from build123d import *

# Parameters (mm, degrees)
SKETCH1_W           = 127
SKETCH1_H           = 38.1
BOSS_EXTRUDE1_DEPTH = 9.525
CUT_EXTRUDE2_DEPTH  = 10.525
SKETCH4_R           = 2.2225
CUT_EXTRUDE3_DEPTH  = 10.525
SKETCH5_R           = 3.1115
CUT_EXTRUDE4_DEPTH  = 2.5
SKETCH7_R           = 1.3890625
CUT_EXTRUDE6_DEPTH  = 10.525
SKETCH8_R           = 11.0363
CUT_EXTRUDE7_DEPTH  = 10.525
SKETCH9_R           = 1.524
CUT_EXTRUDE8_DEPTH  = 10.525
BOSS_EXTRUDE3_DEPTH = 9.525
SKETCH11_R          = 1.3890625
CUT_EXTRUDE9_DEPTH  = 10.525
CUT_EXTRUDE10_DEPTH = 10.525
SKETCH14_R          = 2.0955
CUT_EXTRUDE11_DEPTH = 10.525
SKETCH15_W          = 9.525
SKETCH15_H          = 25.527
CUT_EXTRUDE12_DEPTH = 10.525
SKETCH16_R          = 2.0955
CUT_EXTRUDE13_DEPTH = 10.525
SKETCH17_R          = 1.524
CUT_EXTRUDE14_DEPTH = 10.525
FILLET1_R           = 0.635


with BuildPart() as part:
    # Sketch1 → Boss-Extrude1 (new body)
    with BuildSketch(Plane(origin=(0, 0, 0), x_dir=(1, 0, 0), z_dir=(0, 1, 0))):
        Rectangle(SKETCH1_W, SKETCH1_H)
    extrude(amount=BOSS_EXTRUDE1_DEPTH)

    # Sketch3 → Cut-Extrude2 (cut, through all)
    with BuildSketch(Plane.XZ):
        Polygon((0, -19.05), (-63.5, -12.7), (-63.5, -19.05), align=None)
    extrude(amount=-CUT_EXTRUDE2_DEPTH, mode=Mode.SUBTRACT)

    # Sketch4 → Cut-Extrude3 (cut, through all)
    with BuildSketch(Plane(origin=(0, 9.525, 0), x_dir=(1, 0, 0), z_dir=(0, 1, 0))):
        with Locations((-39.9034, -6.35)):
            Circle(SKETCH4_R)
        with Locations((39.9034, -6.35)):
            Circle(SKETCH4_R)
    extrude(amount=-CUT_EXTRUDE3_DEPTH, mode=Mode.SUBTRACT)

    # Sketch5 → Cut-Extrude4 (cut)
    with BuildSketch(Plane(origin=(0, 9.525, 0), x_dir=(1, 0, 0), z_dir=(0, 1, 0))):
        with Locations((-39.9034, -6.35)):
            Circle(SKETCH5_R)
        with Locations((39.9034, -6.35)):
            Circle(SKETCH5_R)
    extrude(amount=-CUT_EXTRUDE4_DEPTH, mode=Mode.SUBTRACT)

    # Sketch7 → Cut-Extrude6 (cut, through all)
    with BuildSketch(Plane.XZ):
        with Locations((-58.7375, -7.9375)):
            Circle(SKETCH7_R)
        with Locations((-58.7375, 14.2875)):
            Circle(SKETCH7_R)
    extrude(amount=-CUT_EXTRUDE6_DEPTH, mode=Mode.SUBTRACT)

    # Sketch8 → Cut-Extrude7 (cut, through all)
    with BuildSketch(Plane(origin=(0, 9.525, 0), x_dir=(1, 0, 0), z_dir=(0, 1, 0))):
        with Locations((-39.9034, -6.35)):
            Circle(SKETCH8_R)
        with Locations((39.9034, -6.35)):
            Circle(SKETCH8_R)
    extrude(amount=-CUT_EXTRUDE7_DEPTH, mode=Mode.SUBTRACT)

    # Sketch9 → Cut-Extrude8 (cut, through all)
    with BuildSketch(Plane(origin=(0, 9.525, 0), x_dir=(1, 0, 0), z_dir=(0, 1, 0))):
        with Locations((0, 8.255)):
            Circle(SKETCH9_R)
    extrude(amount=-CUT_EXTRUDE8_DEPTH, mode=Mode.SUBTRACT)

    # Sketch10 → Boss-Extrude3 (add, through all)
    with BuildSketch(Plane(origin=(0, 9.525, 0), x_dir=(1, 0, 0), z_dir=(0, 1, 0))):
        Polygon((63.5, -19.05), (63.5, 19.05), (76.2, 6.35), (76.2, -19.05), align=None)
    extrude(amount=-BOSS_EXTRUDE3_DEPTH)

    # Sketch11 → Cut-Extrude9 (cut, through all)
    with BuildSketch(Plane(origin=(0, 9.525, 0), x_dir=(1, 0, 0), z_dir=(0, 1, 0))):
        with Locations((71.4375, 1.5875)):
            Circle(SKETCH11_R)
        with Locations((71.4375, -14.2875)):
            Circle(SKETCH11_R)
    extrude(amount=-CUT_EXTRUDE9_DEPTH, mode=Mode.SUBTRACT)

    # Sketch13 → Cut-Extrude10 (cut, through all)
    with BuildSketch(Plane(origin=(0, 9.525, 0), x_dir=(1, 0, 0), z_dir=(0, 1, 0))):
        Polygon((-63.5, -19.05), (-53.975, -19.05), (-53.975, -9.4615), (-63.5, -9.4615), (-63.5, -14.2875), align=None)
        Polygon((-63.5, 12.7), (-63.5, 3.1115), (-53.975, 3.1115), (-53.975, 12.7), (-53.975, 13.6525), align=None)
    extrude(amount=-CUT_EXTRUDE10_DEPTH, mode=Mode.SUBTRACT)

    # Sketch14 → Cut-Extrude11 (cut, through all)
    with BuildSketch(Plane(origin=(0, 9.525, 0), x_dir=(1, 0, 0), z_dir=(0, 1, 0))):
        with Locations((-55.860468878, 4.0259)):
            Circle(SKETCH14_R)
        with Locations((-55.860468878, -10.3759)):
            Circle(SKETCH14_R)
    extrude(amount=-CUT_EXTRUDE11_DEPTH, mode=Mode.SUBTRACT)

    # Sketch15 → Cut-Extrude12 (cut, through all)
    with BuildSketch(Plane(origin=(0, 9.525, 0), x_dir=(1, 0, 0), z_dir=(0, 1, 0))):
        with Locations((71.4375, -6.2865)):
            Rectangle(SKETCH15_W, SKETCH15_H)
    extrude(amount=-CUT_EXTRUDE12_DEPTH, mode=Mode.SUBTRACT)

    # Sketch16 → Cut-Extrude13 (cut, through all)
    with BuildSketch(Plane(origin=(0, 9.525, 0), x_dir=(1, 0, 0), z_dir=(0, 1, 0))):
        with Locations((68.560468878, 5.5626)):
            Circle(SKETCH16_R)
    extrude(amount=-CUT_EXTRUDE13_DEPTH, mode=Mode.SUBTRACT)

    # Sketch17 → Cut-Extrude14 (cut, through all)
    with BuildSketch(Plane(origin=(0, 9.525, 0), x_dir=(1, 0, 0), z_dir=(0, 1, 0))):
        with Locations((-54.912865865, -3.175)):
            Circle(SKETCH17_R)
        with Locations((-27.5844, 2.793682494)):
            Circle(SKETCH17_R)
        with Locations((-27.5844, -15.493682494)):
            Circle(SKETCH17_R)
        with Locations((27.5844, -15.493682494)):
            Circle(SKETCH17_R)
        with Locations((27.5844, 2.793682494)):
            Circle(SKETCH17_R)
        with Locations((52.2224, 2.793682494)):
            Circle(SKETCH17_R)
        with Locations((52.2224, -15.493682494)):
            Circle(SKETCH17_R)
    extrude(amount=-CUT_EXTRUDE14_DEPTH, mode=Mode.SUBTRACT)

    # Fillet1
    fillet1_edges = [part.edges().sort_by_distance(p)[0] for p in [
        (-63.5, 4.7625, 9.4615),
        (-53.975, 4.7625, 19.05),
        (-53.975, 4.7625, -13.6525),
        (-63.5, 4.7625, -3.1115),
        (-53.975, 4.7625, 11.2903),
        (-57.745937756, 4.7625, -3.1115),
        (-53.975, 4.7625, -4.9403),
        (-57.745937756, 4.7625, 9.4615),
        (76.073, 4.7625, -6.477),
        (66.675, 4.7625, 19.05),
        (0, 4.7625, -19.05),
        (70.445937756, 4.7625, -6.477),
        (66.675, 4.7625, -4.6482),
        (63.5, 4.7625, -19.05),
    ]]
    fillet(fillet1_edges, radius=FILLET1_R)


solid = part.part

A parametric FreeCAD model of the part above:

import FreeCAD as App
import Part
import Sketcher
Q = App.Units.Quantity


def edges_at(feature, points):
    """Names of the edges that pass closest to the given points."""
    edges = feature.Shape.Edges
    near = lambda p: min(range(len(edges)), key=lambda i: edges[i].distToShape(Part.Vertex(*p))[0])
    return sorted({f"Edge{near(p) + 1}" for p in points})


def add_polygon(sketch, points):
    """Adds a closed chain of lines whose ends are joined by coincident constraints."""
    first, n = sketch.GeometryCount, len(points)
    for a, b in zip(points, points[1:] + points[:1]):
        sketch.addGeometry(Part.LineSegment(App.Vector(*a, 0), App.Vector(*b, 0)), False)
    for i in range(n):
        sketch.addConstraint(Sketcher.Constraint("Coincident", first + i, 2, first + (i + 1) % n, 1))

doc = App.newDocument("Part")
params = doc.addObject("Spreadsheet::Sheet", "Params")
for row, (alias, value) in enumerate([
    ("sketch1_width", "5 in"),
    ("sketch1_height", "1.5 in"),
    ("pad1_length", "0.375 in"),
    ("sketch2_width", "2.5 in"),
    ("sketch2_height", "0.25 in"),
    ("sketch3_diameter", "0.175 in"),
    ("sketch4_diameter", "0.245 in"),
    ("pocket3_length", "2.5 mm"),
    ("sketch5_diameter", "0.109375 in"),
    ("sketch6_diameter", "0.869 in"),
    ("sketch7_diameter", "0.12 in"),
    ("sketch8_height", "1 in"),
    ("sketch8_width", "0.5 in"),
    ("sketch8_height2", "1.5 in"),
    ("pad2_length", "0.375 in"),
    ("sketch9_diameter", "0.109375 in"),
    ("sketch10_width", "0.375 in"),
    ("sketch10_height", "0.415 in"),
    ("sketch11_diameter", "0.165 in"),
    ("sketch12_width", "0.375 in"),
    ("sketch12_height", "1.005 in"),
    ("sketch13_diameter", "0.165 in"),
    ("sketch14_diameter", "0.12 in"),
    ("fillet_radius", "0.025 in"),
], start=1):
    params.set(f"A{row}", alias)
    params.set(f"B{row}", "=" + value)
    params.setAlias(f"B{row}", alias)

body = doc.addObject("PartDesign::Body", "Body")

sketch1 = doc.addObject("Sketcher::SketchObject", "Sketch")
body.addObject(sketch1)
sketch1.AttachmentSupport = (doc.XZ_Plane, [""])
sketch1.MapMode = "FlatFace"
add_polygon(sketch1, [(-63.5, -19.05), (-63.5, 19.05), (63.5, 19.05), (63.5, -19.05)])
sketch1.addConstraint(Sketcher.Constraint("Vertical", 0))
sketch1.addConstraint(Sketcher.Constraint("Horizontal", 1))
sketch1.addConstraint(Sketcher.Constraint("Vertical", 2))
sketch1.addConstraint(Sketcher.Constraint("Horizontal", 3))
sketch1.addConstraint(Sketcher.Constraint("Symmetric", 0, 2, 2, 2, -1, 1))
sketch1.addConstraint(Sketcher.Constraint("DistanceX", 1, 1, 1, 2, Q("5 in")))
sketch1.addConstraint(Sketcher.Constraint("DistanceY", 0, 1, 0, 2, Q("1.5 in")))
sketch1.setExpression("Constraints[9]", "Params.sketch1_width")
sketch1.setExpression("Constraints[10]", "Params.sketch1_height")
pad1 = doc.addObject("PartDesign::Pad", "Pad")
body.addObject(pad1)
pad1.Profile = sketch1
pad1.setExpression("Length", "Params.pad1_length")
pad1.Reversed = True

sketch2 = doc.addObject("Sketcher::SketchObject", "Sketch001")
body.addObject(sketch2)
sketch2.AttachmentSupport = (doc.XZ_Plane, [""])
sketch2.MapMode = "FlatFace"
add_polygon(sketch2, [(0, -19.05), (-63.5, -12.7), (-63.5, -19.05)])
sketch2.addConstraint(Sketcher.Constraint("Vertical", 1))
sketch2.addConstraint(Sketcher.Constraint("Horizontal", 2))
sketch2.addConstraint(Sketcher.Constraint("PointOnObject", 2, 2, -2))
sketch2.addConstraint(Sketcher.Constraint("DistanceX", 2, 1, 2, 2, Q("2.5 in")))
sketch2.addConstraint(Sketcher.Constraint("DistanceY", 1, 2, 1, 1, Q("0.25 in")))
sketch2.addConstraint(Sketcher.Constraint("DistanceY", 0, 2, -1, 1, Q("0.5 in")))
sketch2.setExpression("Constraints[6]", "Params.sketch2_width")
sketch2.setExpression("Constraints[7]", "Params.sketch2_height")
pocket1 = doc.addObject("PartDesign::Pocket", "Pocket")
body.addObject(pocket1)
pocket1.Profile = sketch2
pocket1.Type = "ThroughAll"

sketch3 = doc.addObject("Sketcher::SketchObject", "Sketch002")
body.addObject(sketch3)
sketch3.AttachmentSupport = (doc.XZ_Plane, [""])
sketch3.MapMode = "FlatFace"
sketch3.AttachmentOffset = App.Placement(App.Vector(0, 0, -0.375 * 25.4), App.Rotation())
sketch3.addGeometry(Part.Circle(App.Vector(-39.9034, 6.35, 0), App.Vector(0, 0, 1), 2.2225), False)
sketch3.addGeometry(Part.Circle(App.Vector(39.9034, 6.35, 0), App.Vector(0, 0, 1), 2.2225), False)
sketch3.addConstraint(Sketcher.Constraint("Equal", 0, 1))
sketch3.addConstraint(Sketcher.Constraint("Symmetric", 0, 3, 1, 3, -2))
sketch3.addConstraint(Sketcher.Constraint("Diameter", 0, Q("0.175 in")))
sketch3.addConstraint(Sketcher.Constraint("DistanceY", -1, 1, 0, 3, Q("0.25 in")))
sketch3.addConstraint(Sketcher.Constraint("DistanceX", 0, 3, -1, 1, Q("1.571 in")))
sketch3.setExpression("Constraints[2]", "Params.sketch3_diameter")
pocket2 = doc.addObject("PartDesign::Pocket", "Pocket001")
body.addObject(pocket2)
pocket2.Profile = sketch3
pocket2.Type = "ThroughAll"
pocket2.Reversed = True

sketch4 = doc.addObject("Sketcher::SketchObject", "Sketch003")
body.addObject(sketch4)
sketch4.AttachmentSupport = (doc.XZ_Plane, [""])
sketch4.MapMode = "FlatFace"
sketch4.AttachmentOffset = App.Placement(App.Vector(0, 0, -0.375 * 25.4), App.Rotation())
sketch4.addGeometry(Part.Circle(App.Vector(-39.9034, 6.35, 0), App.Vector(0, 0, 1), 3.1115), False)
sketch4.addGeometry(Part.Circle(App.Vector(39.9034, 6.35, 0), App.Vector(0, 0, 1), 3.1115), False)
sketch4.addConstraint(Sketcher.Constraint("Equal", 0, 1))
sketch4.addConstraint(Sketcher.Constraint("Symmetric", 0, 3, 1, 3, -2))
sketch4.addConstraint(Sketcher.Constraint("Diameter", 0, Q("0.245 in")))
sketch4.addConstraint(Sketcher.Constraint("DistanceY", -1, 1, 0, 3, Q("0.25 in")))
sketch4.addConstraint(Sketcher.Constraint("DistanceX", 0, 3, -1, 1, Q("1.571 in")))
sketch4.setExpression("Constraints[2]", "Params.sketch4_diameter")
pocket3 = doc.addObject("PartDesign::Pocket", "Pocket002")
body.addObject(pocket3)
pocket3.Profile = sketch4
pocket3.setExpression("Length", "Params.pocket3_length")
pocket3.Reversed = True

sketch5 = doc.addObject("Sketcher::SketchObject", "Sketch004")
body.addObject(sketch5)
sketch5.AttachmentSupport = (doc.XZ_Plane, [""])
sketch5.MapMode = "FlatFace"
sketch5.addGeometry(Part.Circle(App.Vector(-58.7375, -7.9375, 0), App.Vector(0, 0, 1), 1.389063), False)
sketch5.addGeometry(Part.Circle(App.Vector(-58.7375, 14.2875, 0), App.Vector(0, 0, 1), 1.389063), False)
sketch5.addConstraint(Sketcher.Constraint("Equal", 0, 1))
sketch5.addConstraint(Sketcher.Constraint("Vertical", 0, 3, 1, 3))
sketch5.addConstraint(Sketcher.Constraint("Diameter", 0, Q("0.109375 in")))
sketch5.addConstraint(Sketcher.Constraint("DistanceX", 0, 3, -1, 1, Q("2.3125 in")))
sketch5.addConstraint(Sketcher.Constraint("DistanceY", 0, 3, -1, 1, Q("0.3125 in")))
sketch5.addConstraint(Sketcher.Constraint("DistanceY", -1, 1, 1, 3, Q("0.5625 in")))
sketch5.setExpression("Constraints[2]", "Params.sketch5_diameter")
pocket4 = doc.addObject("PartDesign::Pocket", "Pocket003")
body.addObject(pocket4)
pocket4.Profile = sketch5
pocket4.Type = "ThroughAll"

sketch6 = doc.addObject("Sketcher::SketchObject", "Sketch005")
body.addObject(sketch6)
sketch6.AttachmentSupport = (doc.XZ_Plane, [""])
sketch6.MapMode = "FlatFace"
sketch6.AttachmentOffset = App.Placement(App.Vector(0, 0, -0.375 * 25.4), App.Rotation())
sketch6.addGeometry(Part.Circle(App.Vector(-39.9034, 6.35, 0), App.Vector(0, 0, 1), 11.0363), False)
sketch6.addGeometry(Part.Circle(App.Vector(39.9034, 6.35, 0), App.Vector(0, 0, 1), 11.0363), False)
sketch6.addConstraint(Sketcher.Constraint("Equal", 0, 1))
sketch6.addConstraint(Sketcher.Constraint("Symmetric", 0, 3, 1, 3, -2))
sketch6.addConstraint(Sketcher.Constraint("Diameter", 0, Q("0.869 in")))
sketch6.addConstraint(Sketcher.Constraint("DistanceY", -1, 1, 0, 3, Q("0.25 in")))
sketch6.addConstraint(Sketcher.Constraint("DistanceX", 0, 3, -1, 1, Q("1.571 in")))
sketch6.setExpression("Constraints[2]", "Params.sketch6_diameter")
pocket5 = doc.addObject("PartDesign::Pocket", "Pocket004")
body.addObject(pocket5)
pocket5.Profile = sketch6
pocket5.Type = "ThroughAll"
pocket5.Reversed = True

sketch7 = doc.addObject("Sketcher::SketchObject", "Sketch006")
body.addObject(sketch7)
sketch7.AttachmentSupport = (doc.XZ_Plane, [""])
sketch7.MapMode = "FlatFace"
sketch7.AttachmentOffset = App.Placement(App.Vector(0, 0, -0.375 * 25.4), App.Rotation())
sketch7.addGeometry(Part.Circle(App.Vector(0, -8.255, 0), App.Vector(0, 0, 1), 1.524), False)
sketch7.addConstraint(Sketcher.Constraint("PointOnObject", 0, 3, -2))
sketch7.addConstraint(Sketcher.Constraint("Diameter", 0, Q("0.12 in")))
sketch7.addConstraint(Sketcher.Constraint("DistanceY", 0, 3, -1, 1, Q("0.325 in")))
sketch7.setExpression("Constraints[1]", "Params.sketch7_diameter")
pocket6 = doc.addObject("PartDesign::Pocket", "Pocket005")
body.addObject(pocket6)
pocket6.Profile = sketch7
pocket6.Type = "ThroughAll"
pocket6.Reversed = True

sketch8 = doc.addObject("Sketcher::SketchObject", "Sketch007")
body.addObject(sketch8)
sketch8.AttachmentSupport = (doc.XZ_Plane, [""])
sketch8.MapMode = "FlatFace"
sketch8.AttachmentOffset = App.Placement(App.Vector(0, 0, -0.375 * 25.4), App.Rotation())
add_polygon(sketch8, [(63.5, -19.05), (63.5, 19.05), (76.2, 19.05), (76.2, -6.35)])
sketch8.addConstraint(Sketcher.Constraint("Vertical", 0))
sketch8.addConstraint(Sketcher.Constraint("Horizontal", 1))
sketch8.addConstraint(Sketcher.Constraint("Vertical", 2))
sketch8.addConstraint(Sketcher.Constraint("DistanceY", 2, 2, 2, 1, Q("1 in")))
sketch8.addConstraint(Sketcher.Constraint("DistanceX", 1, 1, 1, 2, Q("0.5 in")))
sketch8.addConstraint(Sketcher.Constraint("DistanceY", 0, 1, 0, 2, Q("1.5 in")))
sketch8.addConstraint(Sketcher.Constraint("DistanceX", -1, 1, 1, 2, Q("3 in")))
sketch8.addConstraint(Sketcher.Constraint("DistanceY", -1, 1, 0, 2, Q("0.75 in")))
sketch8.setExpression("Constraints[7]", "Params.sketch8_height")
sketch8.setExpression("Constraints[8]", "Params.sketch8_width")
sketch8.setExpression("Constraints[9]", "Params.sketch8_height2")
pad2 = doc.addObject("PartDesign::Pad", "Pad001")
body.addObject(pad2)
pad2.Profile = sketch8
pad2.setExpression("Length", "Params.pad2_length")

sketch9 = doc.addObject("Sketcher::SketchObject", "Sketch008")
body.addObject(sketch9)
sketch9.AttachmentSupport = (doc.XZ_Plane, [""])
sketch9.MapMode = "FlatFace"
sketch9.AttachmentOffset = App.Placement(App.Vector(0, 0, -0.375 * 25.4), App.Rotation())
sketch9.addGeometry(Part.Circle(App.Vector(71.4375, -1.5875, 0), App.Vector(0, 0, 1), 1.389063), False)
sketch9.addGeometry(Part.Circle(App.Vector(71.4375, 14.2875, 0), App.Vector(0, 0, 1), 1.389063), False)
sketch9.addConstraint(Sketcher.Constraint("Equal", 0, 1))
sketch9.addConstraint(Sketcher.Constraint("Vertical", 0, 3, 1, 3))
sketch9.addConstraint(Sketcher.Constraint("Diameter", 0, Q("0.109375 in")))
sketch9.addConstraint(Sketcher.Constraint("DistanceX", -1, 1, 0, 3, Q("2.8125 in")))
sketch9.addConstraint(Sketcher.Constraint("DistanceY", 0, 3, -1, 1, Q("0.0625 in")))
sketch9.addConstraint(Sketcher.Constraint("DistanceY", -1, 1, 1, 3, Q("0.5625 in")))
sketch9.setExpression("Constraints[2]", "Params.sketch9_diameter")
pocket7 = doc.addObject("PartDesign::Pocket", "Pocket006")
body.addObject(pocket7)
pocket7.Profile = sketch9
pocket7.Type = "ThroughAll"
pocket7.Reversed = True

sketch10 = doc.addObject("Sketcher::SketchObject", "Sketch009")
body.addObject(sketch10)
sketch10.AttachmentSupport = (doc.XZ_Plane, [""])
sketch10.MapMode = "FlatFace"
sketch10.AttachmentOffset = App.Placement(App.Vector(0, 0, -0.375 * 25.4), App.Rotation())
add_polygon(sketch10, [(-63.5, 19.05), (-53.975, 19.05), (-53.975, 9.4615), (-63.5, 9.4615)])
add_polygon(sketch10, [(-63.5, -12.7), (-63.5, -3.1115), (-53.975, -3.1115), (-53.975, -13.6525)])
sketch10.addConstraint(Sketcher.Constraint("Horizontal", 0))
sketch10.addConstraint(Sketcher.Constraint("Vertical", 1))
sketch10.addConstraint(Sketcher.Constraint("Horizontal", 2))
sketch10.addConstraint(Sketcher.Constraint("Vertical", 3))
sketch10.addConstraint(Sketcher.Constraint("Vertical", 4))
sketch10.addConstraint(Sketcher.Constraint("Horizontal", 5))
sketch10.addConstraint(Sketcher.Constraint("Vertical", 6))
sketch10.addConstraint(Sketcher.Constraint("Vertical", 3, 2, 4, 2))
sketch10.addConstraint(Sketcher.Constraint("Vertical", 1, 2, 5, 2))
sketch10.addConstraint(Sketcher.Constraint("Equal", 3, 4))
sketch10.addConstraint(Sketcher.Constraint("DistanceX", 2, 2, -1, 1, Q("2.5 in")))
sketch10.addConstraint(Sketcher.Constraint("DistanceY", 7, 2, -1, 1, Q("0.5 in")))
sketch10.addConstraint(Sketcher.Constraint("DistanceX", 0, 1, 0, 2, Q("0.375 in")))
sketch10.addConstraint(Sketcher.Constraint("DistanceY", 6, 2, 6, 1, Q("0.415 in")))
sketch10.addConstraint(Sketcher.Constraint("DistanceY", -1, 1, 0, 2, Q("0.75 in")))
sketch10.addConstraint(Sketcher.Constraint("DistanceY", 6, 2, 1, 2, Q("0.91 in")))
sketch10.setExpression("Constraints[20]", "Params.sketch10_width")
sketch10.setExpression("Constraints[21]", "Params.sketch10_height")
pocket8 = doc.addObject("PartDesign::Pocket", "Pocket007")
body.addObject(pocket8)
pocket8.Profile = sketch10
pocket8.Type = "ThroughAll"
pocket8.Reversed = True

sketch11 = doc.addObject("Sketcher::SketchObject", "Sketch010")
body.addObject(sketch11)
sketch11.AttachmentSupport = (doc.XZ_Plane, [""])
sketch11.MapMode = "FlatFace"
sketch11.AttachmentOffset = App.Placement(App.Vector(0, 0, -0.375 * 25.4), App.Rotation())
sketch11.addGeometry(Part.Circle(App.Vector(-55.860469, -4.0259, 0), App.Vector(0, 0, 1), 2.0955), False)
sketch11.addGeometry(Part.Circle(App.Vector(-55.860469, 10.3759, 0), App.Vector(0, 0, 1), 2.0955), False)
sketch11.addConstraint(Sketcher.Constraint("Equal", 0, 1))
sketch11.addConstraint(Sketcher.Constraint("Vertical", 0, 3, 1, 3))
sketch11.addConstraint(Sketcher.Constraint("Diameter", 0, Q("0.165 in")))
sketch11.addConstraint(Sketcher.Constraint("DistanceY", 0, 3, 1, 3, Q("0.567 in")))
sketch11.addConstraint(Sketcher.Constraint("DistanceY", 0, 3, -1, 1, Q("0.1585 in")))
sketch11.addConstraint(Sketcher.Constraint("DistanceX", 0, 3, -1, 1, Q("55.860469 mm")))
sketch11.setExpression("Constraints[2]", "Params.sketch11_diameter")
pocket9 = doc.addObject("PartDesign::Pocket", "Pocket008")
body.addObject(pocket9)
pocket9.Profile = sketch11
pocket9.Type = "ThroughAll"
pocket9.Reversed = True

sketch12 = doc.addObject("Sketcher::SketchObject", "Sketch011")
body.addObject(sketch12)
sketch12.AttachmentSupport = (doc.XZ_Plane, [""])
sketch12.MapMode = "FlatFace"
sketch12.AttachmentOffset = App.Placement(App.Vector(0, 0, -0.375 * 25.4), App.Rotation())
add_polygon(sketch12, [(66.675, -6.477), (66.675, 19.05), (76.2, 19.05), (76.2, -6.477)])
sketch12.addConstraint(Sketcher.Constraint("Vertical", 0))
sketch12.addConstraint(Sketcher.Constraint("Horizontal", 1))
sketch12.addConstraint(Sketcher.Constraint("Vertical", 2))
sketch12.addConstraint(Sketcher.Constraint("Horizontal", 3))
sketch12.addConstraint(Sketcher.Constraint("DistanceX", -1, 1, 1, 2, Q("3 in")))
sketch12.addConstraint(Sketcher.Constraint("DistanceX", 1, 1, 1, 2, Q("0.375 in")))
sketch12.addConstraint(Sketcher.Constraint("DistanceY", 0, 1, 0, 2, Q("1.005 in")))
sketch12.addConstraint(Sketcher.Constraint("DistanceY", -1, 1, 0, 2, Q("0.75 in")))
sketch12.setExpression("Constraints[9]", "Params.sketch12_width")
sketch12.setExpression("Constraints[10]", "Params.sketch12_height")
pocket10 = doc.addObject("PartDesign::Pocket", "Pocket009")
body.addObject(pocket10)
pocket10.Profile = sketch12
pocket10.Type = "ThroughAll"
pocket10.Reversed = True

sketch13 = doc.addObject("Sketcher::SketchObject", "Sketch012")
body.addObject(sketch13)
sketch13.AttachmentSupport = (doc.XZ_Plane, [""])
sketch13.MapMode = "FlatFace"
sketch13.AttachmentOffset = App.Placement(App.Vector(0, 0, -0.375 * 25.4), App.Rotation())
sketch13.addGeometry(Part.Circle(App.Vector(68.560469, -5.5626, 0), App.Vector(0, 0, 1), 2.0955), False)
sketch13.addConstraint(Sketcher.Constraint("Diameter", 0, Q("0.165 in")))
sketch13.addConstraint(Sketcher.Constraint("DistanceY", 0, 3, -1, 1, Q("0.219 in")))
sketch13.addConstraint(Sketcher.Constraint("DistanceX", -1, 1, 0, 3, Q("68.560469 mm")))
sketch13.setExpression("Constraints[0]", "Params.sketch13_diameter")
pocket11 = doc.addObject("PartDesign::Pocket", "Pocket010")
body.addObject(pocket11)
pocket11.Profile = sketch13
pocket11.Type = "ThroughAll"
pocket11.Reversed = True

sketch14 = doc.addObject("Sketcher::SketchObject", "Sketch013")
body.addObject(sketch14)
sketch14.AttachmentSupport = (doc.XZ_Plane, [""])
sketch14.MapMode = "FlatFace"
sketch14.AttachmentOffset = App.Placement(App.Vector(0, 0, -0.375 * 25.4), App.Rotation())
sketch14.addGeometry(Part.Circle(App.Vector(-54.912866, 3.175, 0), App.Vector(0, 0, 1), 1.524), False)
sketch14.addGeometry(Part.Circle(App.Vector(-27.5844, -2.793682, 0), App.Vector(0, 0, 1), 1.524), False)
sketch14.addGeometry(Part.Circle(App.Vector(-27.5844, 15.493682, 0), App.Vector(0, 0, 1), 1.524), False)
sketch14.addGeometry(Part.Circle(App.Vector(27.5844, 15.493682, 0), App.Vector(0, 0, 1), 1.524), False)
sketch14.addGeometry(Part.Circle(App.Vector(27.5844, -2.793682, 0), App.Vector(0, 0, 1), 1.524), False)
sketch14.addGeometry(Part.Circle(App.Vector(52.2224, -2.793682, 0), App.Vector(0, 0, 1), 1.524), False)
sketch14.addGeometry(Part.Circle(App.Vector(52.2224, 15.493682, 0), App.Vector(0, 0, 1), 1.524), False)
sketch14.addConstraint(Sketcher.Constraint("Equal", 0, 1))
sketch14.addConstraint(Sketcher.Constraint("Equal", 1, 2))
sketch14.addConstraint(Sketcher.Constraint("Equal", 2, 3))
sketch14.addConstraint(Sketcher.Constraint("Equal", 3, 4))
sketch14.addConstraint(Sketcher.Constraint("Equal", 4, 5))
sketch14.addConstraint(Sketcher.Constraint("Equal", 5, 6))
sketch14.addConstraint(Sketcher.Constraint("Symmetric", 2, 3, 3, 3, -2))
sketch14.addConstraint(Sketcher.Constraint("Symmetric", 1, 3, 4, 3, -2))
sketch14.addConstraint(Sketcher.Constraint("Horizontal", 4, 3, 5, 3))
sketch14.addConstraint(Sketcher.Constraint("Horizontal", 3, 3, 6, 3))
sketch14.addConstraint(Sketcher.Constraint("Vertical", 1, 3, 2, 3))
sketch14.addConstraint(Sketcher.Constraint("Vertical", 5, 3, 6, 3))
sketch14.addConstraint(Sketcher.Constraint("Diameter", 0, Q("0.12 in")))
sketch14.addConstraint(Sketcher.Constraint("DistanceX", 4, 3, 5, 3, Q("0.97 in")))
sketch14.addConstraint(Sketcher.Constraint("DistanceY", -1, 1, 0, 3, Q("0.125 in")))
sketch14.addConstraint(Sketcher.Constraint("DistanceX", 1, 3, -1, 1, Q("1.086 in")))
sketch14.addConstraint(Sketcher.Constraint("DistanceX", 0, 3, -1, 1, Q("54.912866 mm")))
sketch14.addConstraint(Sketcher.Constraint("DistanceY", 1, 3, -1, 1, Q("2.793682 mm")))
sketch14.addConstraint(Sketcher.Constraint("DistanceY", -1, 1, 2, 3, Q("15.493682 mm")))
sketch14.setExpression("Constraints[12]", "Params.sketch14_diameter")
pocket12 = doc.addObject("PartDesign::Pocket", "Pocket011")
body.addObject(pocket12)
pocket12.Profile = sketch14
pocket12.Type = "ThroughAll"
pocket12.Reversed = True
doc.recompute()

fillet = doc.addObject("PartDesign::Fillet", "Fillet")
body.addObject(fillet)
fillet.Base = (pocket12, edges_at(pocket12, [
    (-63.5, 4.763, 9.461),
    (-53.975, 4.763, 19.05),
    (-53.975, 4.763, -13.652),
    (-63.5, 4.763, -3.111),
    (-53.975, 4.763, 11.29),
    (-57.746, 4.763, -3.111),
    (-53.975, 4.763, -4.94),
    (-57.746, 4.763, 9.461),
    (76.073, 4.763, -6.477),
    (66.675, 4.763, 19.05),
    (0, 4.763, -19.05),
    (70.446, 4.763, -6.477),
    (66.675, 4.763, -4.648),
    (63.5, 4.763, -19.05),
]))
fillet.setExpression("Radius", "Params.fillet_radius")

doc.recompute()
